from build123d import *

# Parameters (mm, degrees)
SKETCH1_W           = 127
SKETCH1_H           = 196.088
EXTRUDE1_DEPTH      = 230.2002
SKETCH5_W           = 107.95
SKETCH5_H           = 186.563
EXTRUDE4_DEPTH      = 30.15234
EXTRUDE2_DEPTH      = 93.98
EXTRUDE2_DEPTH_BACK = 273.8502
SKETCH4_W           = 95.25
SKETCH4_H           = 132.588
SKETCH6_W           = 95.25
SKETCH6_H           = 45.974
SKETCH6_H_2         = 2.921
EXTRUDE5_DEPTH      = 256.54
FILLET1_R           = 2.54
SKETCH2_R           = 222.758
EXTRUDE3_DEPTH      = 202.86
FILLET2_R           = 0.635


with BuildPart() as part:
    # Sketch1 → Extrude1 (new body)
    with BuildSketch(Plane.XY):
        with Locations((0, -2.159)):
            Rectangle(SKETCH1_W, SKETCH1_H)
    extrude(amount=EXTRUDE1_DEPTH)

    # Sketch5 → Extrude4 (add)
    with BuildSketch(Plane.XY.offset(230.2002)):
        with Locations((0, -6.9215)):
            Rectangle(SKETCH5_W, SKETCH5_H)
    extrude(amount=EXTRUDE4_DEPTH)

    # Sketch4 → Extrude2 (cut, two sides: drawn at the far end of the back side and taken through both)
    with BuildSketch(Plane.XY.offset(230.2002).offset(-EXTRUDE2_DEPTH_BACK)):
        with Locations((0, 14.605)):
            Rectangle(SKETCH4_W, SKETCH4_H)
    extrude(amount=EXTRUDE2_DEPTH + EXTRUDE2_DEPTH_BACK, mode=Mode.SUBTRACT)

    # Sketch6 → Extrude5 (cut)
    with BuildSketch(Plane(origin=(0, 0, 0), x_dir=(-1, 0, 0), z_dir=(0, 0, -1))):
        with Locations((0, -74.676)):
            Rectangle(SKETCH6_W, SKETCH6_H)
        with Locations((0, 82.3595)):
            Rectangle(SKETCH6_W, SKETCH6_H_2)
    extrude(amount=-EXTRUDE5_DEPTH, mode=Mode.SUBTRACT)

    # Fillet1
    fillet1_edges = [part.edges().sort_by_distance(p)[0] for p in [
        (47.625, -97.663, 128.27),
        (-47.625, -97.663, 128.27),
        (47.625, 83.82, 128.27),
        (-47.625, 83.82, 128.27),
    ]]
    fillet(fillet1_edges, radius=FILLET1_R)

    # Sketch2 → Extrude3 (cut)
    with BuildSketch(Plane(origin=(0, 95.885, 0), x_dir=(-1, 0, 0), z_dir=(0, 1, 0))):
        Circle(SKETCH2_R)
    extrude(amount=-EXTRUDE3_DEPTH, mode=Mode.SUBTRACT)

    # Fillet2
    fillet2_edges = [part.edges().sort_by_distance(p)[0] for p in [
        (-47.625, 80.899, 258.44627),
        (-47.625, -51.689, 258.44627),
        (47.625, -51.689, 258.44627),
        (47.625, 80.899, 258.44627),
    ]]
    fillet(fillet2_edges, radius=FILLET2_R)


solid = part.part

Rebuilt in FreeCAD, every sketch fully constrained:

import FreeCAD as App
import Part
import Sketcher
Q = App.Units.Quantity


def edges_at(feature, points):
    """Names of the edges that pass closest to the given points."""
    edges = feature.Shape.Edges
    near = lambda p: min(range(len(edges)), key=lambda i: edges[i].distToShape(Part.Vertex(*p))[0])
    return sorted({f"Edge{near(p) + 1}" for p in points})


def add_polygon(sketch, points):
    """Adds a closed chain of lines whose ends are joined by coincident constraints."""
    first, n = sketch.GeometryCount, len(points)
    for a, b in zip(points, points[1:] + points[:1]):
        sketch.addGeometry(Part.LineSegment(App.Vector(*a, 0), App.Vector(*b, 0)), False)
    for i in range(n):
        sketch.addConstraint(Sketcher.Constraint("Coincident", first + i, 2, first + (i + 1) % n, 1))

doc = App.newDocument("Part")
body = doc.addObject("PartDesign::Body", "Body")

sketch1 = doc.addObject("Sketcher::SketchObject", "Sketch")
body.addObject(sketch1)
sketch1.AttachmentSupport = (doc.XY_Plane, [""])
sketch1.MapMode = "FlatFace"
add_polygon(sketch1, [(-64, 96), (-64, -100), (64, -100), (64, 96)])
sketch1.addConstraint([
    Sketcher.Constraint("Vertical", 0),
    Sketcher.Constraint("Horizontal", 1),
    Sketcher.Constraint("Vertical", 2),
    Sketcher.Constraint("Horizontal", 3),
    Sketcher.Constraint("DistanceX", 1, 1, 1, 2, Q("5 in")),
    Sketcher.Constraint("DistanceY", 0, 2, 0, 1, Q("7.72 in")),
    Sketcher.Constraint("DistanceX", 0, 2, -1, 1, Q("2.5 in")),
    Sketcher.Constraint("DistanceY", 0, 2, -1, 1, Q("3.945 in")),
])
pad1 = doc.addObject("PartDesign::Pad", "Pad")
body.addObject(pad1)
pad1.Profile = sketch1
pad1.Length = Q("9.063 in")

sketch2 = doc.addObject("Sketcher::SketchObject", "Sketch001")
body.addObject(sketch2)
sketch2.AttachmentSupport = (doc.XY_Plane, [""])
sketch2.MapMode = "FlatFace"
sketch2.AttachmentOffset = App.Placement(App.Vector(0, 0, 9.063 * 25.4), App.Rotation())
add_polygon(sketch2, [(-54, 86), (-54, -100), (54, -100), (54, 86)])
sketch2.addConstraint([
    Sketcher.Constraint("Vertical", 0),
    Sketcher.Constraint("Horizontal", 1),
    Sketcher.Constraint("Vertical", 2),
    Sketcher.Constraint("Horizontal", 3),
    Sketcher.Constraint("DistanceX", 1, 1, 1, 2, Q("4.25 in")),
    Sketcher.Constraint("DistanceY", -1, 1, 2, 2, Q("3.4 in")),
    Sketcher.Constraint("DistanceY", 0, 2, 0, 1, Q("7.345 in")),
    Sketcher.Constraint("DistanceX", 0, 2, -1, 1, Q("2.125 in")),
])
pad2 = doc.addObject("PartDesign::Pad", "Pad001")
body.addObject(pad2)
pad2.Profile = sketch2
pad2.Length = Q("1.1871 in")

sketch3 = doc.addObject("Sketcher::SketchObject", "Sketch002")
body.addObject(sketch3)
sketch3.AttachmentSupport = (doc.XY_Plane, [""])
sketch3.MapMode = "FlatFace"
sketch3.AttachmentOffset = App.Placement(App.Vector(0, 0, 9.063 * 25.4), App.Rotation())
add_polygon(sketch3, [(-48, 81), (-48, -52), (48, -52), (48, 81)])
sketch3.addConstraint([
    Sketcher.Constraint("Vertical", 0),
    Sketcher.Constraint("Horizontal", 1),
    Sketcher.Constraint("Vertical", 2),
    Sketcher.Constraint("Horizontal", 3),
    Sketcher.Constraint("DistanceX", 1, 1, 1, 2, Q("3.75 in")),
    Sketcher.Constraint("DistanceY", 0, 2, 0, 1, Q("5.22 in")),
    Sketcher.Constraint("DistanceX", 0, 2, -1, 1, Q("1.875 in")),
    Sketcher.Constraint("DistanceY", 0, 2, -1, 1, Q("2.035 in")),
])
pocket1 = doc.addObject("PartDesign::Pocket", "Pocket")
body.addObject(pocket1)
pocket1.Profile = sketch3
pocket1.Type = "ThroughAll"
pocket1.Midplane = True

sketch4 = doc.addObject("Sketcher::SketchObject", "Sketch003")
body.addObject(sketch4)
sketch4.AttachmentSupport = (doc.XY_Plane, [""])
sketch4.MapMode = "FlatFace"
add_polygon(sketch4, [(47.6, -51.7), (47.6, -97.7), (-47.6, -97.7), (-47.6, -51.7)])
add_polygon(sketch4, [(47.6, 83.8), (47.6, 80.9), (-47.6, 80.9), (-47.6, 83.8)])
sketch4.addConstraint([
    Sketcher.Constraint("Vertical", 0),
    Sketcher.Constraint("Horizontal", 1),
    Sketcher.Constraint("Vertical", 2),
    Sketcher.Constraint("Horizontal", 3),
    Sketcher.Constraint("Vertical", 4),
    Sketcher.Constraint("Horizontal", 5),
    Sketcher.Constraint("Vertical", 6),
    Sketcher.Constraint("Horizontal", 7),
    Sketcher.Constraint("Vertical", 3, 2, 4, 2),
    Sketcher.Constraint("Vertical", 2, 2, 5, 2),
    Sketcher.Constraint("DistanceX", 1, 2, 1, 1, Q("3.75 in")),
    Sketcher.Constraint("DistanceY", 0, 2, 0, 1, Q("1.81 in")),
    Sketcher.Constraint("DistanceY", -1, 1, 6, 2, Q("3.3 in")),
    Sketcher.Constraint("DistanceY", 4, 2, 4, 1, Q("0.115 in")),
    Sketcher.Constraint("DistanceY", 3, 2, 4, 2, Q("5.22 in")),
    Sketcher.Constraint("DistanceX", -1, 1, 0, 2, Q("1.875 in")),
])
pocket2 = doc.addObject("PartDesign::Pocket", "Pocket001")
body.addObject(pocket2)
pocket2.Profile = sketch4
pocket2.Length = Q("10.1 in")
pocket2.Reversed = True
doc.recompute()

fillet = doc.addObject("PartDesign::Fillet", "Fillet")
body.addObject(fillet)
fillet.Base = (pocket2, edges_at(pocket2, [
    (47.625, -97.663, 128.27),
    (-47.625, -97.663, 128.27),
    (47.625, 83.82, 128.27),
    (-47.625, 83.82, 128.27),
]))
fillet.Radius = Q("0.1 in")

sketch5 = doc.addObject("Sketcher::SketchObject", "Sketch004")
body.addObject(sketch5)
sketch5.AttachmentSupport = (doc.XZ_Plane, [""])
sketch5.MapMode = "FlatFace"
sketch5.AttachmentOffset = App.Placement(App.Vector(0, 0, -3.775 * 25.4), App.Rotation())
sketch5.addGeometry(Part.Circle(App.Vector(0, 0, 0), App.Vector(0, 0, 1), 223), False)
sketch5.addConstraint([
    Sketcher.Constraint("Coincident", 0, 3, -1, 1),
    Sketcher.Constraint("Diameter", 0, Q("17.54 in")),
])
pocket3 = doc.addObject("PartDesign::Pocket", "Pocket002")
body.addObject(pocket3)
pocket3.Profile = sketch5
pocket3.Length = 202.86
pocket3.Reversed = True
doc.recompute()

fillet2 = doc.addObject("PartDesign::Fillet", "Fillet001")
body.addObject(fillet2)
fillet2.Base = (pocket3, edges_at(pocket3, [
    (-47.625, 80.899, 258.446),
    (-47.625, -51.689, 258.446),
    (47.625, -51.689, 258.446),
    (47.625, 80.899, 258.446),
]))
fillet2.Radius = Q("0.025 in")

doc.recompute()
